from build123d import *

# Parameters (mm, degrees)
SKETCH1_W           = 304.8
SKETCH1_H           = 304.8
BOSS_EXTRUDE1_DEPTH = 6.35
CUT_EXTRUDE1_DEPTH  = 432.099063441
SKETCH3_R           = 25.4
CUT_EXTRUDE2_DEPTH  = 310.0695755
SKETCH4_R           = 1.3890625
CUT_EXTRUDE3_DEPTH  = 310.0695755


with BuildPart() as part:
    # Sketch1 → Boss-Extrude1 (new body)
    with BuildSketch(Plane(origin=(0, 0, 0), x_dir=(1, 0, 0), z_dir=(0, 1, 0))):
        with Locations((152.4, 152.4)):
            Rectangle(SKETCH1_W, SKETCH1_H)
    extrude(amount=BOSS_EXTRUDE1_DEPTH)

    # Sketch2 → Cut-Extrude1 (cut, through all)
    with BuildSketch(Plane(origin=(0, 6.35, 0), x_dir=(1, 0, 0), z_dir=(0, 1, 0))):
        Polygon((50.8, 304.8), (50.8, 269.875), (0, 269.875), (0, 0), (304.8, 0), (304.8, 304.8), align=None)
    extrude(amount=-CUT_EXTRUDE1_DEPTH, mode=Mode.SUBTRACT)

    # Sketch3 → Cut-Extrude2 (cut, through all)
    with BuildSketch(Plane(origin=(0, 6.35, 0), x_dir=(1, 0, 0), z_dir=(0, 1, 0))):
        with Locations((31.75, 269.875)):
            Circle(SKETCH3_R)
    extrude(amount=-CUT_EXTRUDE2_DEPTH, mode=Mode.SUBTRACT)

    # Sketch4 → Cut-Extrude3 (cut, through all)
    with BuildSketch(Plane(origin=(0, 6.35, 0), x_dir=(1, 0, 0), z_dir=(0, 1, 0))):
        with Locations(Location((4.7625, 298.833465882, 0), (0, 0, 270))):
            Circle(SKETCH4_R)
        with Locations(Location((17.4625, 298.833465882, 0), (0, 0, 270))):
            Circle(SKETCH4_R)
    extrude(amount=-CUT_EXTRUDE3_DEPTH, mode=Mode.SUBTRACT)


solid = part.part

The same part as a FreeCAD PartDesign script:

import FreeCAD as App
import Part
import Sketcher
Q = App.Units.Quantity

doc = App.newDocument("Part")
body = doc.addObject("PartDesign::Body", "Body")

# Sketch on XZ plane
sketch1 = body.newObject("Sketcher::SketchObject", "Sketch")
sketch1.AttachmentSupport = (doc.getObject("XZ_Plane"), [""])
sketch1.MapMode = "FlatFace"
sketch1.addGeometry([
    Part.LineSegment(App.Vector(0, -305, 0), App.Vector(0, 0, 0)),
    Part.LineSegment(App.Vector(0, 0, 0), App.Vector(305, 0, 0)),
    Part.LineSegment(App.Vector(305, 0, 0), App.Vector(305, -305, 0)),
    Part.LineSegment(App.Vector(305, -305, 0), App.Vector(0, -305, 0)),
], False)
sketch1.addConstraint([
    Sketcher.Constraint("Coincident", 0, 2, 1, 1),
    Sketcher.Constraint("Coincident", 1, 2, 2, 1),
    Sketcher.Constraint("Coincident", 2, 2, 3, 1),
    Sketcher.Constraint("Coincident", 3, 2, 0, 1),
    Sketcher.Constraint("Vertical", 0),
    Sketcher.Constraint("Horizontal", 1),
    Sketcher.Constraint("Vertical", 2),
    Sketcher.Constraint("Horizontal", 3),
    Sketcher.Constraint("Coincident", 0, 2, -1, 1),
    Sketcher.Constraint("Equal", 3, 0),
    Sketcher.Constraint("DistanceX", 1, 1, 1, 2, Q("12 in")),
])
pad1 = body.newObject("PartDesign::Pad", "Pad")
pad1.Profile = sketch1
pad1.Length = Q("0.25 in")
pad1.Reversed = True

# Sketch on XZ plane
sketch2 = body.newObject("Sketcher::SketchObject", "Sketch001")
sketch2.AttachmentSupport = (doc.getObject("XZ_Plane"), [""])
sketch2.MapMode = "FlatFace"
sketch2.AttachmentOffset = App.Placement(App.Vector(0, 0, -0.25 * 25.4), App.Rotation())
sketch2.addGeometry([
    Part.LineSegment(App.Vector(51, -305, 0), App.Vector(51, -270, 0)),  # 0
    Part.LineSegment(App.Vector(51, -270, 0), App.Vector(0, -270, 0)),  # 1
    Part.LineSegment(App.Vector(0, -270, 0), App.Vector(0, 0, 0)),  # 2
    Part.LineSegment(App.Vector(0, 0, 0), App.Vector(305, 0, 0)),  # 3
    Part.LineSegment(App.Vector(305, 0, 0), App.Vector(305, -305, 0)),  # 4
    Part.LineSegment(App.Vector(305, -305, 0), App.Vector(51, -305, 0)),  # 5
], False)
sketch2.addConstraint([
    Sketcher.Constraint("Coincident", 0, 2, 1, 1),
    Sketcher.Constraint("Coincident", 1, 2, 2, 1),
    Sketcher.Constraint("Coincident", 2, 2, 3, 1),
    Sketcher.Constraint("Coincident", 3, 2, 4, 1),
    Sketcher.Constraint("Coincident", 4, 2, 5, 1),
    Sketcher.Constraint("Coincident", 5, 2, 0, 1),
    Sketcher.Constraint("Vertical", 0),
    Sketcher.Constraint("Horizontal", 1),
    Sketcher.Constraint("Vertical", 2),
    Sketcher.Constraint("Horizontal", 3),
    Sketcher.Constraint("Vertical", 4),
    Sketcher.Constraint("Horizontal", 5),
    Sketcher.Constraint("Coincident", 2, 2, -1, 1),
    Sketcher.Constraint("Equal", 3, 4),
    Sketcher.Constraint("DistanceX", 1, 2, 1, 1, Q("2 in")),
    Sketcher.Constraint("DistanceX", 3, 1, 3, 2, Q("12 in")),
    Sketcher.Constraint("DistanceY", 0, 1, 0, 2, Q("1.375 in")),
])
pocket1 = body.newObject("PartDesign::Pocket", "Pocket")
pocket1.Profile = sketch2
pocket1.Type = "ThroughAll"
pocket1.Reversed = True

# Sketch on XZ plane
sketch3 = body.newObject("Sketcher::SketchObject", "Sketch002")
sketch3.AttachmentSupport = (doc.getObject("XZ_Plane"), [""])
sketch3.MapMode = "FlatFace"
sketch3.AttachmentOffset = App.Placement(App.Vector(0, 0, -0.25 * 25.4), App.Rotation())
sketch3.addGeometry(Part.Circle(App.Vector(32, -270, 0), App.Vector(0, 0, 1), 25), False)
sketch3.addConstraint([
    Sketcher.Constraint("Diameter", 0, Q("2 in")),
    Sketcher.Constraint("DistanceX", -1, 1, 0, 3, Q("1.25 in")),
    Sketcher.Constraint("DistanceY", 0, 3, -1, 1, Q("10.625 in")),
])
pocket2 = body.newObject("PartDesign::Pocket", "Pocket001")
pocket2.Profile = sketch3
pocket2.Type = "ThroughAll"
pocket2.Reversed = True

# Sketch on XZ plane
sketch4 = body.newObject("Sketcher::SketchObject", "Sketch003")
sketch4.AttachmentSupport = (doc.getObject("XZ_Plane"), [""])
sketch4.MapMode = "FlatFace"
sketch4.AttachmentOffset = App.Placement(App.Vector(0, 0, -0.25 * 25.4), App.Rotation())
sketch4.addGeometry([
    Part.Circle(App.Vector(4.8, -298.8, 0), App.Vector(0, 0, 1), 1.4),
    Part.Circle(App.Vector(17.5, -298.8, 0), App.Vector(0, 0, 1), 1.4),
], False)
sketch4.addConstraint([
    Sketcher.Constraint("Equal", 0, 1),
    Sketcher.Constraint("Horizontal", 0, 3, 1, 3),
    Sketcher.Constraint("Diameter", 0, Q("0.109375 in")),
    Sketcher.Constraint("DistanceX", 0, 3, 1, 3, Q("0.5 in")),
    Sketcher.Constraint("DistanceX", -1, 1, 0, 3, Q("0.1875 in")),
    Sketcher.Constraint("DistanceY", 0, 3, -1, 1, 298.833466),
])
pocket3 = body.newObject("PartDesign::Pocket", "Pocket002")
pocket3.Profile = sketch4
pocket3.Type = "ThroughAll"
pocket3.Reversed = True

doc.recompute()
